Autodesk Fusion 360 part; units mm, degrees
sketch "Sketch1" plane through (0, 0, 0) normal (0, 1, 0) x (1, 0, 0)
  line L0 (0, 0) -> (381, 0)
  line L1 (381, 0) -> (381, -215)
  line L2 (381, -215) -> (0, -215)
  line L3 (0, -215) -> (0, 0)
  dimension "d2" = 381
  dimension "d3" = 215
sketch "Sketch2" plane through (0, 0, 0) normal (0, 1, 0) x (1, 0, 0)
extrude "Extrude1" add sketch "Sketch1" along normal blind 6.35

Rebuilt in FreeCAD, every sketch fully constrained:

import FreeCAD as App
import Part
import Sketcher

V = App.Vector
Q = App.Units.Quantity


def add_polygon(sketch, points):
    """Adds a closed chain of lines whose ends are joined by coincident constraints."""
    first, n = sketch.GeometryCount, len(points)
    for a, b in zip(points, points[1:] + points[:1]):
        sketch.addGeometry(Part.LineSegment(App.Vector(*a, 0), App.Vector(*b, 0)), False)
    for i in range(n):
        sketch.addConstraint(Sketcher.Constraint("Coincident", first + i, 2, first + (i + 1) % n, 1))

doc = App.newDocument("Part")
params = doc.addObject("Spreadsheet::Sheet", "Params")
for row, (alias, value) in enumerate([
    ("sketch1_width", "15 in"),
    ("pad1_length", "0.25 in"),
], start=1):
    params.set(f"A{row}", alias)
    params.set(f"B{row}", "=" + value)
    params.setAlias(f"B{row}", alias)

body = doc.addObject("PartDesign::Body", "Body")

# Sketch on XZ plane
sketch1 = body.newObject("Sketcher::SketchObject", "Sketch")
sketch1.AttachmentSupport = (doc.getObject("XZ_Plane"), [""])
sketch1.MapMode = "FlatFace"
add_polygon(sketch1, [(381, 0), (0, 0), (0, 215), (381, 215)])  # lines 0-3
sketch1.addConstraint(Sketcher.Constraint("Horizontal", 0))
sketch1.addConstraint(Sketcher.Constraint("Vertical", 1))
sketch1.addConstraint(Sketcher.Constraint("Horizontal", 2))
sketch1.addConstraint(Sketcher.Constraint("Vertical", 3))
sketch1.addConstraint(Sketcher.Constraint("Coincident", 0, 2, -1, 1))
sketch1.addConstraint(Sketcher.Constraint("DistanceX", 0, 2, 0, 1, Q("15 in")))
sketch1.addConstraint(Sketcher.Constraint("DistanceY", 1, 1, 1, 2, 215.0))
sketch1.setExpression("Constraints[9]", "Params.sketch1_width")
pad1 = body.newObject("PartDesign::Pad", "Pad")
pad1.Profile = sketch1
pad1.setExpression("Length", "Params.pad1_length")
pad1.Reversed = True

doc.recompute()
